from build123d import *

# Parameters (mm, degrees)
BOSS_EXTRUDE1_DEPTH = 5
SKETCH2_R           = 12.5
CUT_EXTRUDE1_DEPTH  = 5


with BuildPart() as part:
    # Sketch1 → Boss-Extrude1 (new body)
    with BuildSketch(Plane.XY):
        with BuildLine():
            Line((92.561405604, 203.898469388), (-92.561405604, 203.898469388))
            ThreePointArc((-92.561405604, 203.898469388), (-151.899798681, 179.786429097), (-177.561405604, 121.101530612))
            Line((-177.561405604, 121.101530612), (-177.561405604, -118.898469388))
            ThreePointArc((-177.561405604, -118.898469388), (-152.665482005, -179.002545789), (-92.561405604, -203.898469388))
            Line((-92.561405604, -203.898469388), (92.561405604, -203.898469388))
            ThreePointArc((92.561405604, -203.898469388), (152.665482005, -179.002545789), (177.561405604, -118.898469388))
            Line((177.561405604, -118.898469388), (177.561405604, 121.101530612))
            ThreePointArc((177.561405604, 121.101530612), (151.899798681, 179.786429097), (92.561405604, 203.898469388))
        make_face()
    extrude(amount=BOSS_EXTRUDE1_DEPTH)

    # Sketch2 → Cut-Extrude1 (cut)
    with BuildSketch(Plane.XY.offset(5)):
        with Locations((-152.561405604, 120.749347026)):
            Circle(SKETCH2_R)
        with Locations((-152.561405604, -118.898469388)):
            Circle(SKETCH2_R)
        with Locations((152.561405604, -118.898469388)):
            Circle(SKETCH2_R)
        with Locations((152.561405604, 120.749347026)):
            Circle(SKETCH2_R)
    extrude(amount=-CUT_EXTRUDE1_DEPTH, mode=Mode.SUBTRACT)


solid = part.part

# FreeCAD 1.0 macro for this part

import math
import FreeCAD as App
import Part
import Sketcher

doc = App.newDocument("Part")
body = doc.addObject("PartDesign::Body", "Body")

sketch1 = body.newObject("Sketcher::SketchObject", "Sketch")
sketch1.AttachmentSupport = (doc.getObject("XY_Plane"), [""])
sketch1.MapMode = "FlatFace"
sketch1.addGeometry([
    Part.LineSegment(App.Vector(93, 204, 0), App.Vector(-93, 204, 0)),
    Part.ArcOfCircle(Part.Circle(App.Vector(-93, 119, 0), App.Vector(0, 0, 1), 85), math.radians(90), math.radians(179)),
    Part.LineSegment(App.Vector(-178, 121, 0), App.Vector(-178, -119, 0)),
    Part.ArcOfCircle(Part.Circle(App.Vector(-93, -119, 0), App.Vector(0, 0, 1), 85), math.radians(180), math.radians(270)),
    Part.LineSegment(App.Vector(-93, -204, 0), App.Vector(93, -204, 0)),
    Part.ArcOfCircle(Part.Circle(App.Vector(93, -119, 0), App.Vector(0, 0, 1), 85), math.radians(-90), math.radians(0)),
    Part.LineSegment(App.Vector(178, -119, 0), App.Vector(178, 121, 0)),
    Part.ArcOfCircle(Part.Circle(App.Vector(93, 119, 0), App.Vector(0, 0, 1), 85), math.radians(1), math.radians(90)),
], False)
sketch1.addConstraint([
    Sketcher.Constraint("Coincident", 0, 2, 1, 1),
    Sketcher.Constraint("Coincident", 1, 2, 2, 1),
    Sketcher.Constraint("Tangent", 2, 2, 3, 1),
    Sketcher.Constraint("Tangent", 3, 2, 4, 1),
    Sketcher.Constraint("Tangent", 4, 2, 5, 1),
    Sketcher.Constraint("Tangent", 5, 2, 6, 1),
    Sketcher.Constraint("Coincident", 6, 2, 7, 1),
    Sketcher.Constraint("Coincident", 7, 2, 0, 1),
    Sketcher.Constraint("Horizontal", 0),
    Sketcher.Constraint("Vertical", 2),
    Sketcher.Constraint("Horizontal", 4),
    Sketcher.Constraint("Vertical", 6),
    Sketcher.Constraint("Equal", 1, 3),
    Sketcher.Constraint("Equal", 3, 5),
    Sketcher.Constraint("Equal", 5, 7),
    Sketcher.Constraint("Symmetric", 0, 2, 4, 2, -1, 1),
    Sketcher.Constraint("Symmetric", 1, 2, 6, 2, -2),
    Sketcher.Constraint("Vertical", 4, 2, 7, 2),
    Sketcher.Constraint("Radius", 1, 85.0),
    Sketcher.Constraint("DistanceY", 2, 2, 2, 1, 240.0),
    Sketcher.Constraint("DistanceX", 0, 2, 0, 1, 185.122811),
    Sketcher.Constraint("DistanceX", 1, 3, -1, 1, 92.58996),
])
pad1 = body.newObject("PartDesign::Pad", "Pad")
pad1.Profile = sketch1
pad1.Length = 5

sketch2 = body.newObject("Sketcher::SketchObject", "Sketch001")
sketch2.AttachmentSupport = (doc.getObject("XY_Plane"), [""])
sketch2.MapMode = "FlatFace"
sketch2.AttachmentOffset = App.Placement(App.Vector(0, 0, 5), App.Rotation())
sketch2.addGeometry([
    Part.Circle(App.Vector(-153, 121, 0), App.Vector(0, 0, 1), 12),
    Part.Circle(App.Vector(-153, -119, 0), App.Vector(0, 0, 1), 12),
    Part.Circle(App.Vector(153, -119, 0), App.Vector(0, 0, 1), 12),
    Part.Circle(App.Vector(153, 121, 0), App.Vector(0, 0, 1), 12),
], False)
sketch2.addConstraint([
    Sketcher.Constraint("Equal", 0, 1),
    Sketcher.Constraint("Equal", 1, 2),
    Sketcher.Constraint("Equal", 2, 3),
    Sketcher.Constraint("Symmetric", 1, 3, 2, 3, -2),
    Sketcher.Constraint("Symmetric", 0, 3, 3, 3, -2),
    Sketcher.Constraint("Vertical", 0, 3, 1, 3),
    Sketcher.Constraint("Diameter", 0, 25.0),
    Sketcher.Constraint("DistanceY", 1, 3, -1, 1, 118.898469),
    Sketcher.Constraint("DistanceX", 1, 3, 2, 3, 305.122811),
    Sketcher.Constraint("DistanceY", -1, 1, 0, 3, 120.749347),
])
pocket1 = body.newObject("PartDesign::Pocket", "Pocket")
pocket1.Profile = sketch2
pocket1.Length = 5

doc.recompute()
